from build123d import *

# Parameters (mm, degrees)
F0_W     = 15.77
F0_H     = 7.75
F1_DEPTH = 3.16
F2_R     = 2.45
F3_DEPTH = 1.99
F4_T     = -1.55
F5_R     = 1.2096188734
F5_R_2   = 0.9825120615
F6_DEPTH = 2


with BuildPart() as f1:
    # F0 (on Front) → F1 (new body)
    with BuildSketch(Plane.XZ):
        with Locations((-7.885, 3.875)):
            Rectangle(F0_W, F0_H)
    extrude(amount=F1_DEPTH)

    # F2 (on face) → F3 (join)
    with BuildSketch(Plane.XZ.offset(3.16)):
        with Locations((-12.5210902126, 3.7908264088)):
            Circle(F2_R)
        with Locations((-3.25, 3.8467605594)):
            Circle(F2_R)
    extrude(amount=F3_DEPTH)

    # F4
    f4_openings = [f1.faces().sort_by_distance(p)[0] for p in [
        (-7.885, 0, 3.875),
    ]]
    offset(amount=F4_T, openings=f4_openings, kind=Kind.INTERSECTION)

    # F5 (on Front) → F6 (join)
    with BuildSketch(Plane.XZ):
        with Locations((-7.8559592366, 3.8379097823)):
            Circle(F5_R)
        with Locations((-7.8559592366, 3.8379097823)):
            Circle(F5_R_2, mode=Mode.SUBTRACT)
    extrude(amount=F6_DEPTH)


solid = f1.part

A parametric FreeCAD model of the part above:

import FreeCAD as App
import Part
import Sketcher

V = App.Vector
Q = App.Units.Quantity


def faces_at(feature, points):
    """Names of the faces that lie closest to the given points."""
    faces = feature.Shape.Faces
    near = lambda p: min(range(len(faces)), key=lambda i: faces[i].distToShape(Part.Vertex(*p))[0])
    return sorted({f"Face{near(p) + 1}" for p in points})

doc = App.newDocument("Part")
body = doc.addObject("PartDesign::Body", "Body")

# Sketch on XZ plane
sketch1 = body.newObject("Sketcher::SketchObject", "Sketch")
sketch1.AttachmentSupport = (doc.getObject("XZ_Plane"), [""])
sketch1.MapMode = "FlatFace"
sketch1.addGeometry([
    Part.LineSegment(V(-16, 8, 0), V(-16, 0, 0)),
    Part.LineSegment(V(-16, 0, 0), V(0, 0, 0)),
    Part.LineSegment(V(0, 0, 0), V(0, 8, 0)),
    Part.LineSegment(V(0, 8, 0), V(-16, 8, 0)),
], False)
sketch1.addConstraint([
    Sketcher.Constraint("Coincident", 0, 2, 1, 1),
    Sketcher.Constraint("Coincident", 1, 2, 2, 1),
    Sketcher.Constraint("Coincident", 2, 2, 3, 1),
    Sketcher.Constraint("Coincident", 3, 2, 0, 1),
    Sketcher.Constraint("Vertical", 0),
    Sketcher.Constraint("Horizontal", 1),
    Sketcher.Constraint("Vertical", 2),
    Sketcher.Constraint("Horizontal", 3),
    Sketcher.Constraint("Coincident", 1, 2, -1, 1),
    Sketcher.Constraint("DistanceX", 1, 1, 1, 2, Q("15.77 mm")),
    Sketcher.Constraint("DistanceY", 0, 2, 0, 1, Q("7.75 mm")),
])
pad1 = body.newObject("PartDesign::Pad", "Pad")
pad1.Profile = sketch1
pad1.Length = 3.16

# Sketch on XZ plane
sketch2 = body.newObject("Sketcher::SketchObject", "Sketch001")
sketch2.AttachmentSupport = (doc.getObject("XZ_Plane"), [""])
sketch2.MapMode = "FlatFace"
sketch2.AttachmentOffset = App.Placement(V(0, 0, 3.16), App.Rotation())
sketch2.addGeometry([
    Part.Circle(V(-12.5, 3.8, 0), V(0, 0, 1), 2.5),
    Part.Circle(V(-3.2, 3.8, 0), V(0, 0, 1), 2.5),
], False)
sketch2.addConstraint([
    Sketcher.Constraint("Equal", 0, 1),
    Sketcher.Constraint("Diameter", 0, Q("4.9 mm")),
    Sketcher.Constraint("DistanceX", 1, 3, -1, 1, Q("3.25 mm")),
    Sketcher.Constraint("DistanceX", 0, 3, -1, 1, Q("12.52109 mm")),
    Sketcher.Constraint("DistanceY", -1, 1, 1, 3, Q("3.846761 mm")),
    Sketcher.Constraint("DistanceY", -1, 1, 0, 3, Q("3.790826 mm")),
])
pad2 = body.newObject("PartDesign::Pad", "Pad001")
pad2.Profile = sketch2
pad2.Length = 1.99
doc.recompute()

thickness = body.newObject("PartDesign::Thickness", "Thickness")
thickness.Base = (pad2, faces_at(pad2, [(-7.885, 0, 3.875)]))
thickness.Value = 1.55
thickness.Reversed = True
thickness.Join = "Intersection"

# Sketch on XZ plane
sketch3 = body.newObject("Sketcher::SketchObject", "Sketch002")
sketch3.AttachmentSupport = (doc.getObject("XZ_Plane"), [""])
sketch3.MapMode = "FlatFace"
sketch3.addGeometry([
    Part.Circle(V(-7.9, 3.8, 0), V(0, 0, 1), 1.2),
    Part.Circle(V(-7.9, 3.8, 0), V(0, 0, 1), 1),
], False)
sketch3.addConstraint([
    Sketcher.Constraint("Coincident", 1, 3, 0, 3),
    Sketcher.Constraint("Diameter", 0, Q("2.419238 mm")),
    Sketcher.Constraint("Diameter", 1, Q("1.965024 mm")),
    Sketcher.Constraint("DistanceX", 0, 3, -1, 1, Q("7.855959 mm")),
    Sketcher.Constraint("DistanceY", -1, 1, 0, 3, Q("3.83791 mm")),
])
pad3 = body.newObject("PartDesign::Pad", "Pad002")
pad3.Profile = sketch3
pad3.Length = 2

doc.recompute()
